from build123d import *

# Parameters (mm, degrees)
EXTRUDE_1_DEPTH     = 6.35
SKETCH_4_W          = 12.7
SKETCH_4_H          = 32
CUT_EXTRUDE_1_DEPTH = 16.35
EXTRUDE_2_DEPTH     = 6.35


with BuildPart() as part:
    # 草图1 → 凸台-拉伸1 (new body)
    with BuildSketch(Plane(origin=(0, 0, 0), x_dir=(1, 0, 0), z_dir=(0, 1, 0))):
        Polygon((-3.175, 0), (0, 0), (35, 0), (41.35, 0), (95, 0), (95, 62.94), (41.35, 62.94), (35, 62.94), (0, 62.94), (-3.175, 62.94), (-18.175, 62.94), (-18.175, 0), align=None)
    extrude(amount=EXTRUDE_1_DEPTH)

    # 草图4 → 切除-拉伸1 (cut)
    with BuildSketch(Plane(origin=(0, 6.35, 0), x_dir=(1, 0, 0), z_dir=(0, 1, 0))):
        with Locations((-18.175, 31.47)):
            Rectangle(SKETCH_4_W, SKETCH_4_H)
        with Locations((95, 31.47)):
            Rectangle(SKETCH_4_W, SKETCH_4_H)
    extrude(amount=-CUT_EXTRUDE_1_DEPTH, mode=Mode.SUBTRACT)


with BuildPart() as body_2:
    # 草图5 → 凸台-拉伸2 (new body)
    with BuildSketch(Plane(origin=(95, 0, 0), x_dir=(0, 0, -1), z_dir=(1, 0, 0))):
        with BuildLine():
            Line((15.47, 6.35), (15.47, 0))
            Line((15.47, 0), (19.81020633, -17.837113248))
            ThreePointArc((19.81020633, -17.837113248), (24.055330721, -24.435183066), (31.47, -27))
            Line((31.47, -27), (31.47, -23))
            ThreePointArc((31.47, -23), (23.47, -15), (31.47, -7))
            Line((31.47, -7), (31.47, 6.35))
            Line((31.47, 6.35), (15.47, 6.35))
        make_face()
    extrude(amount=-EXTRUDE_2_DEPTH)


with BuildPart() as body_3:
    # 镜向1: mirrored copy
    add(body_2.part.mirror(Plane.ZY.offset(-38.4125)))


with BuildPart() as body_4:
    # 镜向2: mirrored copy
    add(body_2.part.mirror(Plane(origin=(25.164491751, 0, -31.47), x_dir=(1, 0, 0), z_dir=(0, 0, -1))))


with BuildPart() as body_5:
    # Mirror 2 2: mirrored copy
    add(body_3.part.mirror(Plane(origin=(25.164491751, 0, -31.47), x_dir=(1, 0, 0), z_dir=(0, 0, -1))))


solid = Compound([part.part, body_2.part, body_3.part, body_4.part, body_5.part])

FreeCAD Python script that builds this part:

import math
import FreeCAD as App
import Part
import Sketcher

doc = App.newDocument("Part")
body = doc.addObject("PartDesign::Body", "Body")

sketch1 = doc.addObject("Sketcher::SketchObject", "Sketch")
body.addObject(sketch1)
sketch1.AttachmentSupport = (doc.XZ_Plane, [""])
sketch1.MapMode = "FlatFace"
sketch1.addGeometry(Part.LineSegment(App.Vector(95, 0, 0), App.Vector(95, -63, 0)), False)
sketch1.addGeometry(Part.LineSegment(App.Vector(95, -63, 0), App.Vector(-18, -63, 0)), False)
sketch1.addGeometry(Part.LineSegment(App.Vector(-18, -63, 0), App.Vector(-18, 0, 0)), False)
sketch1.addGeometry(Part.LineSegment(App.Vector(-18, 0, 0), App.Vector(95, 0, 0)), False)
sketch1.addConstraint(Sketcher.Constraint("Coincident", 0, 2, 1, 1))
sketch1.addConstraint(Sketcher.Constraint("Coincident", 1, 2, 2, 1))
sketch1.addConstraint(Sketcher.Constraint("Coincident", 2, 2, 3, 1))
sketch1.addConstraint(Sketcher.Constraint("Coincident", 3, 2, 0, 1))
sketch1.addConstraint(Sketcher.Constraint("Vertical", 0))
sketch1.addConstraint(Sketcher.Constraint("Horizontal", 1))
sketch1.addConstraint(Sketcher.Constraint("Vertical", 2))
sketch1.addConstraint(Sketcher.Constraint("Horizontal", 3))
sketch1.addConstraint(Sketcher.Constraint("PointOnObject", 2, 2, -1))
sketch1.addConstraint(Sketcher.Constraint("DistanceX", -1, 1, 0, 2, 95.0))
sketch1.addConstraint(Sketcher.Constraint("DistanceY", 0, 2, 0, 1, 62.94))
sketch1.addConstraint(Sketcher.Constraint("DistanceX", 1, 2, 1, 1, 113.175))
pad1 = doc.addObject("PartDesign::Pad", "Pad")
body.addObject(pad1)
pad1.Profile = sketch1
pad1.Length = 6.35
pad1.Reversed = True

sketch2 = doc.addObject("Sketcher::SketchObject", "Sketch001")
body.addObject(sketch2)
sketch2.AttachmentSupport = (doc.XZ_Plane, [""])
sketch2.MapMode = "FlatFace"
sketch2.AttachmentOffset = App.Placement(App.Vector(0, 0, -6.35), App.Rotation())
sketch2.addGeometry(Part.LineSegment(App.Vector(-25, -47, 0), App.Vector(-25, -15, 0)), False)
sketch2.addGeometry(Part.LineSegment(App.Vector(-25, -15, 0), App.Vector(-12, -15, 0)), False)
sketch2.addGeometry(Part.LineSegment(App.Vector(-12, -15, 0), App.Vector(-12, -47, 0)), False)
sketch2.addGeometry(Part.LineSegment(App.Vector(-12, -47, 0), App.Vector(-25, -47, 0)), False)
sketch2.addGeometry(Part.LineSegment(App.Vector(89, -47, 0), App.Vector(89, -15, 0)), False)
sketch2.addGeometry(Part.LineSegment(App.Vector(89, -15, 0), App.Vector(101, -15, 0)), False)
sketch2.addGeometry(Part.LineSegment(App.Vector(101, -15, 0), App.Vector(101, -47, 0)), False)
sketch2.addGeometry(Part.LineSegment(App.Vector(101, -47, 0), App.Vector(89, -47, 0)), False)
sketch2.addConstraint(Sketcher.Constraint("Coincident", 0, 2, 1, 1))
sketch2.addConstraint(Sketcher.Constraint("Coincident", 1, 2, 2, 1))
sketch2.addConstraint(Sketcher.Constraint("Coincident", 2, 2, 3, 1))
sketch2.addConstraint(Sketcher.Constraint("Coincident", 3, 2, 0, 1))
sketch2.addConstraint(Sketcher.Constraint("Coincident", 4, 2, 5, 1))
sketch2.addConstraint(Sketcher.Constraint("Coincident", 5, 2, 6, 1))
sketch2.addConstraint(Sketcher.Constraint("Coincident", 6, 2, 7, 1))
sketch2.addConstraint(Sketcher.Constraint("Coincident", 7, 2, 4, 1))
sketch2.addConstraint(Sketcher.Constraint("Vertical", 0))
sketch2.addConstraint(Sketcher.Constraint("Horizontal", 1))
sketch2.addConstraint(Sketcher.Constraint("Vertical", 2))
sketch2.addConstraint(Sketcher.Constraint("Horizontal", 3))
sketch2.addConstraint(Sketcher.Constraint("Vertical", 4))
sketch2.addConstraint(Sketcher.Constraint("Horizontal", 5))
sketch2.addConstraint(Sketcher.Constraint("Vertical", 6))
sketch2.addConstraint(Sketcher.Constraint("Horizontal", 7))
sketch2.addConstraint(Sketcher.Constraint("Horizontal", 1, 2, 4, 2))
sketch2.addConstraint(Sketcher.Constraint("Horizontal", 3, 2, 6, 2))
sketch2.addConstraint(Sketcher.Constraint("Equal", 3, 5))
sketch2.addConstraint(Sketcher.Constraint("DistanceY", 0, 1, 0, 2, 32.0))
sketch2.addConstraint(Sketcher.Constraint("DistanceX", 1, 1, 1, 2, 12.7))
sketch2.addConstraint(Sketcher.Constraint("DistanceY", 0, 2, -1, 1, 15.47))
sketch2.addConstraint(Sketcher.Constraint("DistanceX", -1, 1, 4, 2, 88.65))
sketch2.addConstraint(Sketcher.Constraint("DistanceX", 0, 2, -1, 1, 24.525))
pocket1 = doc.addObject("PartDesign::Pocket", "Pocket")
body.addObject(pocket1)
pocket1.Profile = sketch2
pocket1.Length = 16.35
pocket1.Reversed = True
body2 = doc.addObject("PartDesign::Body", "Body001")

sketch3 = doc.addObject("Sketcher::SketchObject", "Sketch002")
body2.addObject(sketch3)
sketch3.AttachmentSupport = (doc.getObject("YZ_Plane001"), [""])
sketch3.MapMode = "FlatFace"
sketch3.AttachmentOffset = App.Placement(App.Vector(0, 0, 95), App.Rotation())
sketch3.addGeometry(Part.LineSegment(App.Vector(6.3, -15.5, 0), App.Vector(0, -15.5, 0)), False)
sketch3.addGeometry(Part.LineSegment(App.Vector(0, -15.5, 0), App.Vector(-17.8, -19.8, 0)), False)
sketch3.addGeometry(Part.ArcOfCircle(Part.Circle(App.Vector(-15, -31.5, 0), App.Vector(0, 0, 1), 12), math.radians(104), math.radians(180)), False)
sketch3.addGeometry(Part.LineSegment(App.Vector(-27, -31.5, 0), App.Vector(-23, -31.5, 0)), False)
sketch3.addGeometry(Part.ArcOfCircle(Part.Circle(App.Vector(-15, -31.5, 0), App.Vector(0, 0, 1), 8), math.radians(0), math.radians(180)), False)
sketch3.addGeometry(Part.LineSegment(App.Vector(-7, -31.5, 0), App.Vector(6.3, -31.5, 0)), False)
sketch3.addGeometry(Part.LineSegment(App.Vector(6.3, -31.5, 0), App.Vector(6.3, -15.5, 0)), False)
sketch3.addConstraint(Sketcher.Constraint("Coincident", 0, 2, 1, 1))
sketch3.addConstraint(Sketcher.Constraint("Tangent", 1, 2, 2, 1))
sketch3.addConstraint(Sketcher.Constraint("Coincident", 2, 2, 3, 1))
sketch3.addConstraint(Sketcher.Constraint("Coincident", 3, 2, 4, 2))
sketch3.addConstraint(Sketcher.Constraint("Coincident", 4, 1, 5, 1))
sketch3.addConstraint(Sketcher.Constraint("Coincident", 5, 2, 6, 1))
sketch3.addConstraint(Sketcher.Constraint("Coincident", 6, 2, 0, 1))
sketch3.addConstraint(Sketcher.Constraint("Horizontal", 0))
sketch3.addConstraint(Sketcher.Constraint("Horizontal", 3))
sketch3.addConstraint(Sketcher.Constraint("Horizontal", 5))
sketch3.addConstraint(Sketcher.Constraint("Vertical", 6))
sketch3.addConstraint(Sketcher.Constraint("Coincident", 4, 3, 2, 3))
sketch3.addConstraint(Sketcher.Constraint("PointOnObject", 0, 2, -2))
sketch3.addConstraint(Sketcher.Constraint("Horizontal", 4, 3, 2, 2))
sketch3.addConstraint(Sketcher.Constraint("Horizontal", 3, 2, 4, 1))
sketch3.addConstraint(Sketcher.Constraint("Radius", 2, 12.0))
sketch3.addConstraint(Sketcher.Constraint("Radius", 4, 8.0))
sketch3.addConstraint(Sketcher.Constraint("DistanceY", 6, 1, 6, 2, 16.0))
sketch3.addConstraint(Sketcher.Constraint("DistanceX", 2, 3, -1, 1, 15.0))
sketch3.addConstraint(Sketcher.Constraint("DistanceX", 0, 2, 0, 1, 6.35))
sketch3.addConstraint(Sketcher.Constraint("DistanceY", 2, 3, -1, 1, 31.47))
pad2 = doc.addObject("PartDesign::Pad", "Pad001")
body2.addObject(pad2)
pad2.Profile = sketch3
pad2.Length = 6.35
pad2.Reversed = True
body3 = doc.addObject("PartDesign::Body", "Body002")
doc.recompute()

mirroring = doc.addObject("Part::Mirroring", "Mirroring")
mirroring.Source = body2
mirroring.Base = App.Vector(38.4125, 0, 0)
mirroring.Normal = App.Vector(-1, 0, 0)
body3.BaseFeature = mirroring
doc.recompute()
body4 = doc.addObject("PartDesign::Body", "Body003")
doc.recompute()

mirroring2 = doc.addObject("Part::Mirroring", "Mirroring001")
mirroring2.Source = body2
mirroring2.Base = App.Vector(25.164492, 0, -31.47)
mirroring2.Normal = App.Vector(0, 0, -1)
body4.BaseFeature = mirroring2
doc.recompute()
body5 = doc.addObject("PartDesign::Body", "Body004")
doc.recompute()

mirroring3 = doc.addObject("Part::Mirroring", "Mirroring002")
mirroring3.Source = body3
mirroring3.Base = App.Vector(25.164492, 0, -31.47)
mirroring3.Normal = App.Vector(0, 0, -1)
body5.BaseFeature = mirroring3
doc.recompute()
mirroring.Visibility = False
mirroring2.Visibility = False
mirroring3.Visibility = False

doc.recompute()
